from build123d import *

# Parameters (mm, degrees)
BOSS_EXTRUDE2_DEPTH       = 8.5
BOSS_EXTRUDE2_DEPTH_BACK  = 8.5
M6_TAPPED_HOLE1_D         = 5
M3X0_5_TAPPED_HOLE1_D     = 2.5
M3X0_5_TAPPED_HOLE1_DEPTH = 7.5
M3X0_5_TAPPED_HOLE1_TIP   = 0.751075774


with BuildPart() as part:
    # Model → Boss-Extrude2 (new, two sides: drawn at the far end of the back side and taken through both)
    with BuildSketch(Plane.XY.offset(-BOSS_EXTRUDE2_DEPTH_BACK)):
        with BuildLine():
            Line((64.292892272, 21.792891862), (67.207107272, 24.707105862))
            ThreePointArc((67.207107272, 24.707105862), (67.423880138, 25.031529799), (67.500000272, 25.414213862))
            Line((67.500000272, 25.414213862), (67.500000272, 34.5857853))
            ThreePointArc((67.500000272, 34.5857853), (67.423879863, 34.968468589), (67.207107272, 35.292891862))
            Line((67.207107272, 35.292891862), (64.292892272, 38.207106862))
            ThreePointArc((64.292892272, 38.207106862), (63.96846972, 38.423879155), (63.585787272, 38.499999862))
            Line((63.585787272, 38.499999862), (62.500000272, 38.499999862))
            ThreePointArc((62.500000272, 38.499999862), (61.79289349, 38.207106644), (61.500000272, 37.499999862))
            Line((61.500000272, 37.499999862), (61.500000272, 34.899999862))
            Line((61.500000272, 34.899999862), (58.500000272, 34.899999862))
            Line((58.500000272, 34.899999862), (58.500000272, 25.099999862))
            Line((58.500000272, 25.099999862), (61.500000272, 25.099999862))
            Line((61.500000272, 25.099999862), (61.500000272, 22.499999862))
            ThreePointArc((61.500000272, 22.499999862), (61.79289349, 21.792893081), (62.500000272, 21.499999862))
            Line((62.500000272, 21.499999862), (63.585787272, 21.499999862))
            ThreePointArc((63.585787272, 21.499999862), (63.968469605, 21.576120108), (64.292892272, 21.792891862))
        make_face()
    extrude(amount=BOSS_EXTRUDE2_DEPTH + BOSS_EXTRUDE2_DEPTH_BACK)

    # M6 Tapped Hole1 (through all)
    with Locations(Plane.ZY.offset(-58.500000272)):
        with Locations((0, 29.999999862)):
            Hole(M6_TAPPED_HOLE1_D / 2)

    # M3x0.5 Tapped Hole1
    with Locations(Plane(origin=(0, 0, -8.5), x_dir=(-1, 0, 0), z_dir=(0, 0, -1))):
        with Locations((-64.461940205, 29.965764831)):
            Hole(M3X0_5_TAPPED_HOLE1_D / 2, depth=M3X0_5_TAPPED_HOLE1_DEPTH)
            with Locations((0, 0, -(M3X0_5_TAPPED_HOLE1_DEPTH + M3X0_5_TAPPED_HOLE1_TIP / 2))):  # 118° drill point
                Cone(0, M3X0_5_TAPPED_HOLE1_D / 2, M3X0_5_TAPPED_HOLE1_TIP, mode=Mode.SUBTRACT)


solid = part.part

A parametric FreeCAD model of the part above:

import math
import FreeCAD as App
import Part
import Sketcher

V = App.Vector
Q = App.Units.Quantity

doc = App.newDocument("Part")
body = doc.addObject("PartDesign::Body", "Body")

# Sketch on XY plane
sketch1 = doc.addObject("Sketcher::SketchObject", "Sketch")
body.addObject(sketch1)
sketch1.AttachmentSupport = (doc.XY_Plane, [""])
sketch1.MapMode = "FlatFace"
sketch1.addGeometry([
    Part.LineSegment(V(64.3, 21.8, 0), V(67.2, 24.7, 0)),  # 0
    Part.ArcOfCircle(Part.Circle(V(66.5, 25.4, 0), V(0, 0, 1), 1), math.radians(-45), math.radians(0)),  # 1
    Part.LineSegment(V(67.5, 25.4, 0), V(67.5, 34.6, 0)),  # 2
    Part.ArcOfCircle(Part.Circle(V(66.5, 34.6, 0), V(0, 0, 1), 1), math.radians(0), math.radians(45)),  # 3
    Part.LineSegment(V(67.2, 35.3, 0), V(64.3, 38.2, 0)),  # 4
    Part.ArcOfCircle(Part.Circle(V(63.6, 37.5, 0), V(0, 0, 1), 1), math.radians(45), math.radians(90)),  # 5
    Part.LineSegment(V(63.6, 38.5, 0), V(62.5, 38.5, 0)),  # 6
    Part.ArcOfCircle(Part.Circle(V(62.5, 37.5, 0), V(0, 0, 1), 1), math.radians(90), math.radians(180)),  # 7
    Part.LineSegment(V(61.5, 37.5, 0), V(61.5, 34.9, 0)),  # 8
    Part.LineSegment(V(61.5, 34.9, 0), V(58.5, 34.9, 0)),  # 9
    Part.LineSegment(V(58.5, 34.9, 0), V(58.5, 25.1, 0)),  # 10
    Part.LineSegment(V(58.5, 25.1, 0), V(61.5, 25.1, 0)),  # 11
    Part.LineSegment(V(61.5, 25.1, 0), V(61.5, 22.5, 0)),  # 12
    Part.ArcOfCircle(Part.Circle(V(62.5, 22.5, 0), V(0, 0, 1), 1), math.radians(180), math.radians(270)),  # 13
    Part.LineSegment(V(62.5, 21.5, 0), V(63.6, 21.5, 0)),  # 14
    Part.ArcOfCircle(Part.Circle(V(63.6, 22.5, 0), V(0, 0, 1), 1), math.radians(-90), math.radians(-45)),  # 15
], False)
sketch1.addConstraint([
    Sketcher.Constraint("Tangent", 0, 2, 1, 1),
    Sketcher.Constraint("Tangent", 1, 2, 2, 1),
    Sketcher.Constraint("Tangent", 2, 2, 3, 1),
    Sketcher.Constraint("Tangent", 3, 2, 4, 1),
    Sketcher.Constraint("Tangent", 4, 2, 5, 1),
    Sketcher.Constraint("Tangent", 5, 2, 6, 1),
    Sketcher.Constraint("Tangent", 6, 2, 7, 1),
    Sketcher.Constraint("Tangent", 7, 2, 8, 1),
    Sketcher.Constraint("Coincident", 8, 2, 9, 1),
    Sketcher.Constraint("Coincident", 9, 2, 10, 1),
    Sketcher.Constraint("Coincident", 10, 2, 11, 1),
    Sketcher.Constraint("Coincident", 11, 2, 12, 1),
    Sketcher.Constraint("Tangent", 12, 2, 13, 1),
    Sketcher.Constraint("Tangent", 13, 2, 14, 1),
    Sketcher.Constraint("Tangent", 14, 2, 15, 1),
    Sketcher.Constraint("Tangent", 15, 2, 0, 1),
    Sketcher.Constraint("Vertical", 2),
    Sketcher.Constraint("Horizontal", 6),
    Sketcher.Constraint("Vertical", 8),
    Sketcher.Constraint("Horizontal", 9),
    Sketcher.Constraint("Vertical", 10),
    Sketcher.Constraint("Horizontal", 11),
    Sketcher.Constraint("Vertical", 12),
    Sketcher.Constraint("Horizontal", 14),
    Sketcher.Constraint("Equal", 1, 3),
    Sketcher.Constraint("Equal", 3, 5),
    Sketcher.Constraint("Equal", 5, 7),
    Sketcher.Constraint("Equal", 7, 13),
    Sketcher.Constraint("Equal", 13, 15),
    Sketcher.Constraint("Perpendicular", 0, 4),
    Sketcher.Constraint("Vertical", 7, 3, 13, 3),
    Sketcher.Constraint("Vertical", 5, 3, 15, 3),
    Sketcher.Constraint("Vertical", 0, 2, 3, 2),
    Sketcher.Constraint("Equal", 8, 12),
    Sketcher.Constraint("Radius", 1, Q("1 mm")),
    Sketcher.Constraint("DistanceX", 9, 2, 9, 1, Q("3 mm")),
    Sketcher.Constraint("DistanceY", 8, 2, 8, 1, Q("2.6 mm")),
    Sketcher.Constraint("DistanceY", 10, 2, 10, 1, Q("9.8 mm")),
    Sketcher.Constraint("DistanceX", 7, 3, 3, 3, Q("4 mm")),
    Sketcher.Constraint("DistanceX", -1, 1, 1, 3, Q("66.5 mm")),
    Sketcher.Constraint("DistanceY", -1, 1, 5, 3, Q("37.5 mm")),
    Sketcher.Constraint("DistanceY", 2, 1, 2, 2, Q("9.171571 mm")),
])
pad1 = doc.addObject("PartDesign::Pad", "Pad")
body.addObject(pad1)
pad1.Profile = sketch1
pad1.Type = "TwoLengths"
pad1.Length = 8.5
pad1.Length2 = 8.5

# Sketch on YZ plane
sketch2 = doc.addObject("Sketcher::SketchObject", "Sketch001")
body.addObject(sketch2)
sketch2.AttachmentSupport = (doc.YZ_Plane, [""])
sketch2.MapMode = "FlatFace"
sketch2.AttachmentOffset = App.Placement(V(0, 0, 58.5), App.Rotation())
sketch2.addGeometry(Part.Circle(V(30, 0, 0), V(0, 0, 1), 2.5), False)
sketch2.addConstraint([
    Sketcher.Constraint("PointOnObject", 0, 3, -1),
    Sketcher.Constraint("Diameter", 0, Q("5 mm")),
    Sketcher.Constraint("DistanceX", -1, 1, 0, 3, Q("30 mm")),
])
doc.recompute()
hole = doc.addObject("PartDesign::Hole", "Hole")
body.addObject(hole)
hole.Profile = sketch2
hole.ThreadType = "None"
hole.Diameter = 5
hole.DepthType = "ThroughAll"
hole.Reversed = True

# Sketch on XY plane
sketch3 = doc.addObject("Sketcher::SketchObject", "Sketch002")
body.addObject(sketch3)
sketch3.AttachmentSupport = (doc.XY_Plane, [""])
sketch3.MapMode = "FlatFace"
sketch3.AttachmentOffset = App.Placement(V(0, 0, -8.5), App.Rotation())
sketch3.addGeometry(Part.Circle(V(64.5, 30, 0), V(0, 0, 1), 1.2), False)
sketch3.addConstraint([
    Sketcher.Constraint("Diameter", 0, Q("2.5 mm")),
    Sketcher.Constraint("DistanceX", -1, 1, 0, 3, Q("64.46194 mm")),
    Sketcher.Constraint("DistanceY", -1, 1, 0, 3, Q("29.965765 mm")),
])
doc.recompute()
hole2 = doc.addObject("PartDesign::Hole", "Hole001")
body.addObject(hole2)
hole2.Profile = sketch3
hole2.ThreadType = "None"
hole2.Diameter = 2.5
hole2.DepthType = "Dimension"
hole2.Depth = 7.5
hole2.DrillPoint = "Angled"
hole2.DrillPointAngle = 118
hole2.Reversed = True

doc.recompute()
